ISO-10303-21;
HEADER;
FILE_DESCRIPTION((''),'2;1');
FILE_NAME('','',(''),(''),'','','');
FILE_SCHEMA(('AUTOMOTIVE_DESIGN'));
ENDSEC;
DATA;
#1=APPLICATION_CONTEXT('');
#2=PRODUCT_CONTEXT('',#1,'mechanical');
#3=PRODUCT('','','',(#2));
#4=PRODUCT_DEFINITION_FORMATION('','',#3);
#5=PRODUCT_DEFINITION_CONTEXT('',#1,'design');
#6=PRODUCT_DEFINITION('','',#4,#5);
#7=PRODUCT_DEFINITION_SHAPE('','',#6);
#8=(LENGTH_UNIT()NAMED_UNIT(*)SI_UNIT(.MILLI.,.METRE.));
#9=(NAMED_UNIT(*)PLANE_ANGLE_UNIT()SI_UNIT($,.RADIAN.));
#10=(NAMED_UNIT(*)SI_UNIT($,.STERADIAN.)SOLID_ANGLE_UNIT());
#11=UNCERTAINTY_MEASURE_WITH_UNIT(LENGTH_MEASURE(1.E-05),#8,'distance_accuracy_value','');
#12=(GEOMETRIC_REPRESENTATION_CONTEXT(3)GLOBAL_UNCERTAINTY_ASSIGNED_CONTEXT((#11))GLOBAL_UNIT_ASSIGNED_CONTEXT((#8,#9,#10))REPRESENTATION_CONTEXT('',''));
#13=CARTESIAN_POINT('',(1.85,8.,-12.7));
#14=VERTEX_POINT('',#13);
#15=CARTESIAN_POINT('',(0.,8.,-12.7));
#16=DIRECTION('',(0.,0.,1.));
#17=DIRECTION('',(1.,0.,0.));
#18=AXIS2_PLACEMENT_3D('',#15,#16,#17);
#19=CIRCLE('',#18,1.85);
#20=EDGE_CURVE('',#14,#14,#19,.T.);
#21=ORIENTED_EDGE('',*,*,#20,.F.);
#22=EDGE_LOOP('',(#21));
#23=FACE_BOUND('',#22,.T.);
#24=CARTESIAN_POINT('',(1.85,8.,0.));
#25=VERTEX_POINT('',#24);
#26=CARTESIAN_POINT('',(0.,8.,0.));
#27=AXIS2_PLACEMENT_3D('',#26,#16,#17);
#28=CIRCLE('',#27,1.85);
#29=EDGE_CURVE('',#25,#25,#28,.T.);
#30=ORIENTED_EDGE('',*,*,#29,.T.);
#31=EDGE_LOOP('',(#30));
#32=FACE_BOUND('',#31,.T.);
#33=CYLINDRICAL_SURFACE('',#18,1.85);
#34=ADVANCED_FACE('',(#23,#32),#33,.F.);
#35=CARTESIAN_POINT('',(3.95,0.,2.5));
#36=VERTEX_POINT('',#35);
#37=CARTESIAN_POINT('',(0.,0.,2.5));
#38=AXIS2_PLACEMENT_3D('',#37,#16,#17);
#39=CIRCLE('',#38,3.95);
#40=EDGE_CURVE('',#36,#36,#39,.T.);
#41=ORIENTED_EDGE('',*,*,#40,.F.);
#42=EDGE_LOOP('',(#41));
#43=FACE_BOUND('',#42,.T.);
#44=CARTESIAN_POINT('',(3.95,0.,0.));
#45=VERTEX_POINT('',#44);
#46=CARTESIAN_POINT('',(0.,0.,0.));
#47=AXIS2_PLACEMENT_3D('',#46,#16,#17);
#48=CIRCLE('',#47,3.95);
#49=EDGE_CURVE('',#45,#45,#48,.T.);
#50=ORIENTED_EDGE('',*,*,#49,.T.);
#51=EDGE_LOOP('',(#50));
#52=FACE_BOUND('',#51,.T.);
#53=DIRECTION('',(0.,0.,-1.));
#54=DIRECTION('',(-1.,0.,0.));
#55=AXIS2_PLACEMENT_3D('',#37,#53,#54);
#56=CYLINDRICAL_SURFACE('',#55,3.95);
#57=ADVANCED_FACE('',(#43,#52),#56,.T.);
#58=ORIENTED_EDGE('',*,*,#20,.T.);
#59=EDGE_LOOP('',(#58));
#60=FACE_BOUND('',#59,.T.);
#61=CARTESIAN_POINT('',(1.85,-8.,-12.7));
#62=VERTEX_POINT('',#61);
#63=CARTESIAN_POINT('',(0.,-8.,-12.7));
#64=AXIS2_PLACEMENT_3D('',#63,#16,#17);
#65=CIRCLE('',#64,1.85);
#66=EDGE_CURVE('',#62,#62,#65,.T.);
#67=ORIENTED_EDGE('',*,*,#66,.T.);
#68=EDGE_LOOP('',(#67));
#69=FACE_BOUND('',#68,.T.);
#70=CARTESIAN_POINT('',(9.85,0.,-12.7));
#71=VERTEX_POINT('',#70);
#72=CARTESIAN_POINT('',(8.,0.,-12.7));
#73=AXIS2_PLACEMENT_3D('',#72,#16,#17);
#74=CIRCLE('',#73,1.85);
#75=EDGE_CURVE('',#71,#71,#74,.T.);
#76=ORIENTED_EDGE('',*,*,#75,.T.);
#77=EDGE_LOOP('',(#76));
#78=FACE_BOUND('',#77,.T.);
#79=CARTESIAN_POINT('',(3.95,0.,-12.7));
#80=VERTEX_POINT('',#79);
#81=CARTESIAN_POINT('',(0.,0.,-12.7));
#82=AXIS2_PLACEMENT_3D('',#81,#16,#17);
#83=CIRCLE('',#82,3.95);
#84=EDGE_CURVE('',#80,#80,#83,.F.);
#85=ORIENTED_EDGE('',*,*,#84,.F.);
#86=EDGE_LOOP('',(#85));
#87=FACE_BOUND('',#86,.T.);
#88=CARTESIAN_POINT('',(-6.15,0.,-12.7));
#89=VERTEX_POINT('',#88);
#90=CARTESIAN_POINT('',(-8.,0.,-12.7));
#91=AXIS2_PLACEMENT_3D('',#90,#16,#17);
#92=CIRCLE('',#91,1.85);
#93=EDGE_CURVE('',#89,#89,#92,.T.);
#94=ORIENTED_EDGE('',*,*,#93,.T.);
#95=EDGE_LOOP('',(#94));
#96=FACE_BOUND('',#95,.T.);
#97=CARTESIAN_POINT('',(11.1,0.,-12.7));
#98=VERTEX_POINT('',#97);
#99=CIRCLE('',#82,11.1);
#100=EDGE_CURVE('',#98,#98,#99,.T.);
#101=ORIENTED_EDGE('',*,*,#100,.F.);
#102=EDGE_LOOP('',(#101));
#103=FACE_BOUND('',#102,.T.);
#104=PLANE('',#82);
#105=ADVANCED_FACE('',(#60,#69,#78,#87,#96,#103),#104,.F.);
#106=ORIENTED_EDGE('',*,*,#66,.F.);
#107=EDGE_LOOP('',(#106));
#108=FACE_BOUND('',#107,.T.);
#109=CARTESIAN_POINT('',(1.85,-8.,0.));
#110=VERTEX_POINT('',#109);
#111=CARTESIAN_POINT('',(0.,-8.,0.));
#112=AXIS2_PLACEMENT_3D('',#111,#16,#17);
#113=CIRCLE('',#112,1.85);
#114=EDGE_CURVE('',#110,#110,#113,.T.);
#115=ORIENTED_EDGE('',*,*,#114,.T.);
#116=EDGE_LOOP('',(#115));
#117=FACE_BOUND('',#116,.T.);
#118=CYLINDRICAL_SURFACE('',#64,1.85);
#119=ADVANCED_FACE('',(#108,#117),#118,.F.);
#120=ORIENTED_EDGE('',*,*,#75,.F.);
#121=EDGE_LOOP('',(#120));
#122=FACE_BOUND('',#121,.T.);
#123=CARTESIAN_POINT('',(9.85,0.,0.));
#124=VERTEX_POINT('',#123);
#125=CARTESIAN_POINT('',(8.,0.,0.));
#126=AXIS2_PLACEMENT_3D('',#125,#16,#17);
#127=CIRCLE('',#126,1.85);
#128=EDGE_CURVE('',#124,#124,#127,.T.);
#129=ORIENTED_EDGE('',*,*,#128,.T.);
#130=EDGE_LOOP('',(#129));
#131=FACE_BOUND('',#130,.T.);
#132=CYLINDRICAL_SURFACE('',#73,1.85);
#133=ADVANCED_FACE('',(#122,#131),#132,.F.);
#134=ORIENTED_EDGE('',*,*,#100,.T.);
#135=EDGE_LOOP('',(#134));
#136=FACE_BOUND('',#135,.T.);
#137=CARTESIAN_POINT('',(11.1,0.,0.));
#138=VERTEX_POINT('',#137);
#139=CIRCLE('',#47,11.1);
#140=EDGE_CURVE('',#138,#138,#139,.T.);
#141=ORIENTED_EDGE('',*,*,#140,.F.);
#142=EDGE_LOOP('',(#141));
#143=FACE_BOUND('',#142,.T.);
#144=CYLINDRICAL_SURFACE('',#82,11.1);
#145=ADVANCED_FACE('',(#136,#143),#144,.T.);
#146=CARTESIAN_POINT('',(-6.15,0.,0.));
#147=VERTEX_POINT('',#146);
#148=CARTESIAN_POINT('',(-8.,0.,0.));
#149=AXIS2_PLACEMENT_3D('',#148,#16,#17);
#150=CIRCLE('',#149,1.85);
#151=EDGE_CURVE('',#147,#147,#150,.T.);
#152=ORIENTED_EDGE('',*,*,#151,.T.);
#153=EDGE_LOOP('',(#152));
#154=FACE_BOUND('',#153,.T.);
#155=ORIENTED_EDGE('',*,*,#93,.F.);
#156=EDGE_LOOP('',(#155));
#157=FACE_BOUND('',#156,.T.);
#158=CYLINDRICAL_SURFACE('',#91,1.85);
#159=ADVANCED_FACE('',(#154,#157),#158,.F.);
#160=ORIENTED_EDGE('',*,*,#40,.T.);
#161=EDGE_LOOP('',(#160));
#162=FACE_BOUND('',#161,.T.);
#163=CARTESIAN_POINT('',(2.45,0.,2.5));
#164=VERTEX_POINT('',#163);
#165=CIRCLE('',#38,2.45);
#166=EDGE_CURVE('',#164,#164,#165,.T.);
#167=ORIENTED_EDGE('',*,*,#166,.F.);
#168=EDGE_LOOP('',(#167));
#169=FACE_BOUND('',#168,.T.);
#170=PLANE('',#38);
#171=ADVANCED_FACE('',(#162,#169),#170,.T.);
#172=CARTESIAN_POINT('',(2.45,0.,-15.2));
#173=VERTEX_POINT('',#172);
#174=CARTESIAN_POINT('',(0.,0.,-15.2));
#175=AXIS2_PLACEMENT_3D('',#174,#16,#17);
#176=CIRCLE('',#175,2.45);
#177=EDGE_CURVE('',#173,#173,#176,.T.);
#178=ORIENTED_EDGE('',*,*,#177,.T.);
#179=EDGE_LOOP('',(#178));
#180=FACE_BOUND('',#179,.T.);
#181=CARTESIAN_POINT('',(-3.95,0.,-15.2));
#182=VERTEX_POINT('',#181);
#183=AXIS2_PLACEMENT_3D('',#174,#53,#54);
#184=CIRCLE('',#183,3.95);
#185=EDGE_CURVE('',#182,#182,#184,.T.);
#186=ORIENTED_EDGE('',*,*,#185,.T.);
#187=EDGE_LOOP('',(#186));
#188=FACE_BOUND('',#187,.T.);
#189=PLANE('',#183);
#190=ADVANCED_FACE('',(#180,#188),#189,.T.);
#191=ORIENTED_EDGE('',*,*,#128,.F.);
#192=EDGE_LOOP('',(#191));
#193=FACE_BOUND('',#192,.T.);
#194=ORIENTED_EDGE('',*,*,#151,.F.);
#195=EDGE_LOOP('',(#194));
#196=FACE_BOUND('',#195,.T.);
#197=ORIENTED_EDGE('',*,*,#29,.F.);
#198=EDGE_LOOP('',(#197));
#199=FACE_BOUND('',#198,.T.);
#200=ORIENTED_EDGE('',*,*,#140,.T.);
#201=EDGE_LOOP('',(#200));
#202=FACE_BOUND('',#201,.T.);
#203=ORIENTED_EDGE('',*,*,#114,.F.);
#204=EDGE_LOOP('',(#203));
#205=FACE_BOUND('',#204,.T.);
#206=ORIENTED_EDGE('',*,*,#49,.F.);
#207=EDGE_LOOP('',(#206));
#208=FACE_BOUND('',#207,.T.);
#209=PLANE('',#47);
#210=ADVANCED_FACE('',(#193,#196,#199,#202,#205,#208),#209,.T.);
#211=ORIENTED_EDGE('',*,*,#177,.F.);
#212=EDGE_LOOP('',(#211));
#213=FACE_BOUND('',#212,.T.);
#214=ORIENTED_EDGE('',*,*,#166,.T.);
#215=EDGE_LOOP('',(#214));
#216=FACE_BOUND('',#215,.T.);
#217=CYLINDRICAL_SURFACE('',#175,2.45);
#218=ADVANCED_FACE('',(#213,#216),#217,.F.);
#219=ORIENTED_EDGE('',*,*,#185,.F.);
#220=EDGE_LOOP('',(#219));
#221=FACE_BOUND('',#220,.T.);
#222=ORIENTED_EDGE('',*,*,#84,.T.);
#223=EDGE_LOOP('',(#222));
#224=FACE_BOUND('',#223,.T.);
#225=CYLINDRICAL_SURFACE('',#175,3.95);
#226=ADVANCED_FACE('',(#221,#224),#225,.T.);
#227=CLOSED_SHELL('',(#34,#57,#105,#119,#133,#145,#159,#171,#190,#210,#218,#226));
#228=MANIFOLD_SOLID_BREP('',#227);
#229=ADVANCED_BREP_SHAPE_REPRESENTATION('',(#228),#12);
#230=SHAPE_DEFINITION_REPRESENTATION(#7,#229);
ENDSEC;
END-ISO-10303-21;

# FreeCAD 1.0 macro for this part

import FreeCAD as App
import Part
import Sketcher

V = App.Vector

doc = App.newDocument("Part")
params = doc.addObject("Spreadsheet::Sheet", "Params")
for row, (alias, value) in enumerate([
    ("sketch1_diameter", "22.2 mm"),
    ("pad1_length", "12.7 mm"),
    ("sketch2_diameter", "3.7 mm"),
    ("sketch3_diameter", "7.9 mm"),
    ("pad2_length", "2.5 mm"),
    ("sketch4_diameter", "7.9 mm"),
    ("pad3_length", "2.5 mm"),
    ("sketch5_diameter", "4.9 mm"),
], start=1):
    params.set(f"A{row}", alias)
    params.set(f"B{row}", "=" + value)
    params.setAlias(f"B{row}", alias)

body = doc.addObject("PartDesign::Body", "Body")

sketch1 = doc.addObject("Sketcher::SketchObject", "Sketch")
body.addObject(sketch1)
sketch1.AttachmentSupport = (doc.XY_Plane, [""])
sketch1.MapMode = "FlatFace"
sketch1.addGeometry(Part.Circle(V(0, 0, 0), V(0, 0, 1), 11), False)
sketch1.addConstraint(Sketcher.Constraint("Coincident", 0, 3, -1, 1))
sketch1.addConstraint(Sketcher.Constraint("Diameter", 0, 22.2))
sketch1.setExpression("Constraints[1]", "Params.sketch1_diameter")
pad1 = doc.addObject("PartDesign::Pad", "Pad")
body.addObject(pad1)
pad1.Profile = sketch1
pad1.setExpression("Length", "Params.pad1_length")
pad1.Reversed = True

sketch2 = doc.addObject("Sketcher::SketchObject", "Sketch001")
body.addObject(sketch2)
sketch2.AttachmentSupport = (doc.XY_Plane, [""])
sketch2.MapMode = "FlatFace"
sketch2.addGeometry(Part.Circle(V(8, 0, 0), V(0, 0, 1), 1.9), False)
sketch2.addGeometry(Part.Circle(V(-8, 0, 0), V(0, 0, 1), 1.9), False)
sketch2.addGeometry(Part.Circle(V(0, -8, 0), V(0, 0, 1), 1.9), False)
sketch2.addGeometry(Part.Circle(V(0, 8, 0), V(0, 0, 1), 1.9), False)
sketch2.addConstraint(Sketcher.Constraint("Equal", 0, 1))
sketch2.addConstraint(Sketcher.Constraint("Equal", 1, 2))
sketch2.addConstraint(Sketcher.Constraint("Equal", 2, 3))
sketch2.addConstraint(Sketcher.Constraint("Symmetric", 0, 3, 1, 3, -1, 1))
sketch2.addConstraint(Sketcher.Constraint("Symmetric", 2, 3, 3, 3, -1, 1))
sketch2.addConstraint(Sketcher.Constraint("PointOnObject", 0, 3, -1))
sketch2.addConstraint(Sketcher.Constraint("PointOnObject", 2, 3, -2))
sketch2.addConstraint(Sketcher.Constraint("Diameter", 0, 3.7))
sketch2.addConstraint(Sketcher.Constraint("DistanceX", -1, 1, 0, 3, 8.0))
sketch2.addConstraint(Sketcher.Constraint("DistanceY", 2, 3, -1, 1, 8.0))
sketch2.setExpression("Constraints[7]", "Params.sketch2_diameter")
pocket1 = doc.addObject("PartDesign::Pocket", "Pocket")
body.addObject(pocket1)
pocket1.Profile = sketch2
pocket1.Type = "ThroughAll"

sketch3 = doc.addObject("Sketcher::SketchObject", "Sketch002")
body.addObject(sketch3)
sketch3.AttachmentSupport = (doc.XY_Plane, [""])
sketch3.MapMode = "FlatFace"
sketch3.addGeometry(Part.Circle(V(0, 0, 0), V(0, 0, 1), 4), False)
sketch3.addConstraint(Sketcher.Constraint("Coincident", 0, 3, -1, 1))
sketch3.addConstraint(Sketcher.Constraint("Diameter", 0, 7.9))
sketch3.setExpression("Constraints[1]", "Params.sketch3_diameter")
pad2 = doc.addObject("PartDesign::Pad", "Pad001")
body.addObject(pad2)
pad2.Profile = sketch3
pad2.setExpression("Length", "Params.pad2_length")

sketch4 = doc.addObject("Sketcher::SketchObject", "Sketch003")
body.addObject(sketch4)
sketch4.AttachmentSupport = (doc.XY_Plane, [""])
sketch4.MapMode = "FlatFace"
sketch4.AttachmentOffset = App.Placement(V(0, 0, -12.7), App.Rotation())
sketch4.addGeometry(Part.Circle(V(0, 0, 0), V(0, 0, 1), 4), False)
sketch4.addConstraint(Sketcher.Constraint("Coincident", 0, 3, -1, 1))
sketch4.addConstraint(Sketcher.Constraint("Diameter", 0, 7.9))
sketch4.setExpression("Constraints[1]", "Params.sketch4_diameter")
pad3 = doc.addObject("PartDesign::Pad", "Pad002")
body.addObject(pad3)
pad3.Profile = sketch4
pad3.setExpression("Length", "Params.pad3_length")
pad3.Reversed = True

sketch5 = doc.addObject("Sketcher::SketchObject", "Sketch004")
body.addObject(sketch5)
sketch5.AttachmentSupport = (doc.XY_Plane, [""])
sketch5.MapMode = "FlatFace"
sketch5.AttachmentOffset = App.Placement(V(0, 0, 2.5), App.Rotation())
sketch5.addGeometry(Part.Circle(V(0, 0, 0), V(0, 0, 1), 2.5), False)
sketch5.addConstraint(Sketcher.Constraint("Coincident", 0, 3, -1, 1))
sketch5.addConstraint(Sketcher.Constraint("Diameter", 0, 4.9))
sketch5.setExpression("Constraints[1]", "Params.sketch5_diameter")
pocket2 = doc.addObject("PartDesign::Pocket", "Pocket001")
body.addObject(pocket2)
pocket2.Profile = sketch5
pocket2.Type = "ThroughAll"

doc.recompute()
